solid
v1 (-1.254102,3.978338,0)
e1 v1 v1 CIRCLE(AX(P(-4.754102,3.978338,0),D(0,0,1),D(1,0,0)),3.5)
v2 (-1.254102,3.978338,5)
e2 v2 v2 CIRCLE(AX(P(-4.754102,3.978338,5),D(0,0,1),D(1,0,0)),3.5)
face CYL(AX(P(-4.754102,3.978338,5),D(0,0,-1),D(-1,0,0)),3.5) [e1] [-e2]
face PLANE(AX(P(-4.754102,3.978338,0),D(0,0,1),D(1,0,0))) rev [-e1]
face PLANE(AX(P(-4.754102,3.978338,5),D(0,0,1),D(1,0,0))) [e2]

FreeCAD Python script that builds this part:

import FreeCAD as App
import Part
import Sketcher

V = App.Vector

doc = App.newDocument("Part")
params = doc.addObject("Spreadsheet::Sheet", "Params")
for row, (alias, value) in enumerate([
    ("sketch1_diameter", "7 mm"),
    ("pad1_length", "5 mm"),
], start=1):
    params.set(f"A{row}", alias)
    params.set(f"B{row}", "=" + value)
    params.setAlias(f"B{row}", alias)

body = doc.addObject("PartDesign::Body", "Body")

# Sketch on XY plane
sketch1 = body.newObject("Sketcher::SketchObject", "Sketch")
sketch1.AttachmentSupport = (doc.getObject("XY_Plane"), [""])
sketch1.MapMode = "FlatFace"
sketch1.addGeometry(Part.Circle(V(-4.8, 4, 0), V(0, 0, 1), 3.5), False)
sketch1.addConstraint([
    Sketcher.Constraint("Diameter", 0, 7.0),
    Sketcher.Constraint("DistanceX", 0, 3, -1, 1, 4.754102),
    Sketcher.Constraint("DistanceY", -1, 1, 0, 3, 3.978338),
])
sketch1.setExpression("Constraints[0]", "Params.sketch1_diameter")
pad1 = body.newObject("PartDesign::Pad", "Pad")
pad1.Profile = sketch1
pad1.setExpression("Length", "Params.pad1_length")

doc.recompute()
